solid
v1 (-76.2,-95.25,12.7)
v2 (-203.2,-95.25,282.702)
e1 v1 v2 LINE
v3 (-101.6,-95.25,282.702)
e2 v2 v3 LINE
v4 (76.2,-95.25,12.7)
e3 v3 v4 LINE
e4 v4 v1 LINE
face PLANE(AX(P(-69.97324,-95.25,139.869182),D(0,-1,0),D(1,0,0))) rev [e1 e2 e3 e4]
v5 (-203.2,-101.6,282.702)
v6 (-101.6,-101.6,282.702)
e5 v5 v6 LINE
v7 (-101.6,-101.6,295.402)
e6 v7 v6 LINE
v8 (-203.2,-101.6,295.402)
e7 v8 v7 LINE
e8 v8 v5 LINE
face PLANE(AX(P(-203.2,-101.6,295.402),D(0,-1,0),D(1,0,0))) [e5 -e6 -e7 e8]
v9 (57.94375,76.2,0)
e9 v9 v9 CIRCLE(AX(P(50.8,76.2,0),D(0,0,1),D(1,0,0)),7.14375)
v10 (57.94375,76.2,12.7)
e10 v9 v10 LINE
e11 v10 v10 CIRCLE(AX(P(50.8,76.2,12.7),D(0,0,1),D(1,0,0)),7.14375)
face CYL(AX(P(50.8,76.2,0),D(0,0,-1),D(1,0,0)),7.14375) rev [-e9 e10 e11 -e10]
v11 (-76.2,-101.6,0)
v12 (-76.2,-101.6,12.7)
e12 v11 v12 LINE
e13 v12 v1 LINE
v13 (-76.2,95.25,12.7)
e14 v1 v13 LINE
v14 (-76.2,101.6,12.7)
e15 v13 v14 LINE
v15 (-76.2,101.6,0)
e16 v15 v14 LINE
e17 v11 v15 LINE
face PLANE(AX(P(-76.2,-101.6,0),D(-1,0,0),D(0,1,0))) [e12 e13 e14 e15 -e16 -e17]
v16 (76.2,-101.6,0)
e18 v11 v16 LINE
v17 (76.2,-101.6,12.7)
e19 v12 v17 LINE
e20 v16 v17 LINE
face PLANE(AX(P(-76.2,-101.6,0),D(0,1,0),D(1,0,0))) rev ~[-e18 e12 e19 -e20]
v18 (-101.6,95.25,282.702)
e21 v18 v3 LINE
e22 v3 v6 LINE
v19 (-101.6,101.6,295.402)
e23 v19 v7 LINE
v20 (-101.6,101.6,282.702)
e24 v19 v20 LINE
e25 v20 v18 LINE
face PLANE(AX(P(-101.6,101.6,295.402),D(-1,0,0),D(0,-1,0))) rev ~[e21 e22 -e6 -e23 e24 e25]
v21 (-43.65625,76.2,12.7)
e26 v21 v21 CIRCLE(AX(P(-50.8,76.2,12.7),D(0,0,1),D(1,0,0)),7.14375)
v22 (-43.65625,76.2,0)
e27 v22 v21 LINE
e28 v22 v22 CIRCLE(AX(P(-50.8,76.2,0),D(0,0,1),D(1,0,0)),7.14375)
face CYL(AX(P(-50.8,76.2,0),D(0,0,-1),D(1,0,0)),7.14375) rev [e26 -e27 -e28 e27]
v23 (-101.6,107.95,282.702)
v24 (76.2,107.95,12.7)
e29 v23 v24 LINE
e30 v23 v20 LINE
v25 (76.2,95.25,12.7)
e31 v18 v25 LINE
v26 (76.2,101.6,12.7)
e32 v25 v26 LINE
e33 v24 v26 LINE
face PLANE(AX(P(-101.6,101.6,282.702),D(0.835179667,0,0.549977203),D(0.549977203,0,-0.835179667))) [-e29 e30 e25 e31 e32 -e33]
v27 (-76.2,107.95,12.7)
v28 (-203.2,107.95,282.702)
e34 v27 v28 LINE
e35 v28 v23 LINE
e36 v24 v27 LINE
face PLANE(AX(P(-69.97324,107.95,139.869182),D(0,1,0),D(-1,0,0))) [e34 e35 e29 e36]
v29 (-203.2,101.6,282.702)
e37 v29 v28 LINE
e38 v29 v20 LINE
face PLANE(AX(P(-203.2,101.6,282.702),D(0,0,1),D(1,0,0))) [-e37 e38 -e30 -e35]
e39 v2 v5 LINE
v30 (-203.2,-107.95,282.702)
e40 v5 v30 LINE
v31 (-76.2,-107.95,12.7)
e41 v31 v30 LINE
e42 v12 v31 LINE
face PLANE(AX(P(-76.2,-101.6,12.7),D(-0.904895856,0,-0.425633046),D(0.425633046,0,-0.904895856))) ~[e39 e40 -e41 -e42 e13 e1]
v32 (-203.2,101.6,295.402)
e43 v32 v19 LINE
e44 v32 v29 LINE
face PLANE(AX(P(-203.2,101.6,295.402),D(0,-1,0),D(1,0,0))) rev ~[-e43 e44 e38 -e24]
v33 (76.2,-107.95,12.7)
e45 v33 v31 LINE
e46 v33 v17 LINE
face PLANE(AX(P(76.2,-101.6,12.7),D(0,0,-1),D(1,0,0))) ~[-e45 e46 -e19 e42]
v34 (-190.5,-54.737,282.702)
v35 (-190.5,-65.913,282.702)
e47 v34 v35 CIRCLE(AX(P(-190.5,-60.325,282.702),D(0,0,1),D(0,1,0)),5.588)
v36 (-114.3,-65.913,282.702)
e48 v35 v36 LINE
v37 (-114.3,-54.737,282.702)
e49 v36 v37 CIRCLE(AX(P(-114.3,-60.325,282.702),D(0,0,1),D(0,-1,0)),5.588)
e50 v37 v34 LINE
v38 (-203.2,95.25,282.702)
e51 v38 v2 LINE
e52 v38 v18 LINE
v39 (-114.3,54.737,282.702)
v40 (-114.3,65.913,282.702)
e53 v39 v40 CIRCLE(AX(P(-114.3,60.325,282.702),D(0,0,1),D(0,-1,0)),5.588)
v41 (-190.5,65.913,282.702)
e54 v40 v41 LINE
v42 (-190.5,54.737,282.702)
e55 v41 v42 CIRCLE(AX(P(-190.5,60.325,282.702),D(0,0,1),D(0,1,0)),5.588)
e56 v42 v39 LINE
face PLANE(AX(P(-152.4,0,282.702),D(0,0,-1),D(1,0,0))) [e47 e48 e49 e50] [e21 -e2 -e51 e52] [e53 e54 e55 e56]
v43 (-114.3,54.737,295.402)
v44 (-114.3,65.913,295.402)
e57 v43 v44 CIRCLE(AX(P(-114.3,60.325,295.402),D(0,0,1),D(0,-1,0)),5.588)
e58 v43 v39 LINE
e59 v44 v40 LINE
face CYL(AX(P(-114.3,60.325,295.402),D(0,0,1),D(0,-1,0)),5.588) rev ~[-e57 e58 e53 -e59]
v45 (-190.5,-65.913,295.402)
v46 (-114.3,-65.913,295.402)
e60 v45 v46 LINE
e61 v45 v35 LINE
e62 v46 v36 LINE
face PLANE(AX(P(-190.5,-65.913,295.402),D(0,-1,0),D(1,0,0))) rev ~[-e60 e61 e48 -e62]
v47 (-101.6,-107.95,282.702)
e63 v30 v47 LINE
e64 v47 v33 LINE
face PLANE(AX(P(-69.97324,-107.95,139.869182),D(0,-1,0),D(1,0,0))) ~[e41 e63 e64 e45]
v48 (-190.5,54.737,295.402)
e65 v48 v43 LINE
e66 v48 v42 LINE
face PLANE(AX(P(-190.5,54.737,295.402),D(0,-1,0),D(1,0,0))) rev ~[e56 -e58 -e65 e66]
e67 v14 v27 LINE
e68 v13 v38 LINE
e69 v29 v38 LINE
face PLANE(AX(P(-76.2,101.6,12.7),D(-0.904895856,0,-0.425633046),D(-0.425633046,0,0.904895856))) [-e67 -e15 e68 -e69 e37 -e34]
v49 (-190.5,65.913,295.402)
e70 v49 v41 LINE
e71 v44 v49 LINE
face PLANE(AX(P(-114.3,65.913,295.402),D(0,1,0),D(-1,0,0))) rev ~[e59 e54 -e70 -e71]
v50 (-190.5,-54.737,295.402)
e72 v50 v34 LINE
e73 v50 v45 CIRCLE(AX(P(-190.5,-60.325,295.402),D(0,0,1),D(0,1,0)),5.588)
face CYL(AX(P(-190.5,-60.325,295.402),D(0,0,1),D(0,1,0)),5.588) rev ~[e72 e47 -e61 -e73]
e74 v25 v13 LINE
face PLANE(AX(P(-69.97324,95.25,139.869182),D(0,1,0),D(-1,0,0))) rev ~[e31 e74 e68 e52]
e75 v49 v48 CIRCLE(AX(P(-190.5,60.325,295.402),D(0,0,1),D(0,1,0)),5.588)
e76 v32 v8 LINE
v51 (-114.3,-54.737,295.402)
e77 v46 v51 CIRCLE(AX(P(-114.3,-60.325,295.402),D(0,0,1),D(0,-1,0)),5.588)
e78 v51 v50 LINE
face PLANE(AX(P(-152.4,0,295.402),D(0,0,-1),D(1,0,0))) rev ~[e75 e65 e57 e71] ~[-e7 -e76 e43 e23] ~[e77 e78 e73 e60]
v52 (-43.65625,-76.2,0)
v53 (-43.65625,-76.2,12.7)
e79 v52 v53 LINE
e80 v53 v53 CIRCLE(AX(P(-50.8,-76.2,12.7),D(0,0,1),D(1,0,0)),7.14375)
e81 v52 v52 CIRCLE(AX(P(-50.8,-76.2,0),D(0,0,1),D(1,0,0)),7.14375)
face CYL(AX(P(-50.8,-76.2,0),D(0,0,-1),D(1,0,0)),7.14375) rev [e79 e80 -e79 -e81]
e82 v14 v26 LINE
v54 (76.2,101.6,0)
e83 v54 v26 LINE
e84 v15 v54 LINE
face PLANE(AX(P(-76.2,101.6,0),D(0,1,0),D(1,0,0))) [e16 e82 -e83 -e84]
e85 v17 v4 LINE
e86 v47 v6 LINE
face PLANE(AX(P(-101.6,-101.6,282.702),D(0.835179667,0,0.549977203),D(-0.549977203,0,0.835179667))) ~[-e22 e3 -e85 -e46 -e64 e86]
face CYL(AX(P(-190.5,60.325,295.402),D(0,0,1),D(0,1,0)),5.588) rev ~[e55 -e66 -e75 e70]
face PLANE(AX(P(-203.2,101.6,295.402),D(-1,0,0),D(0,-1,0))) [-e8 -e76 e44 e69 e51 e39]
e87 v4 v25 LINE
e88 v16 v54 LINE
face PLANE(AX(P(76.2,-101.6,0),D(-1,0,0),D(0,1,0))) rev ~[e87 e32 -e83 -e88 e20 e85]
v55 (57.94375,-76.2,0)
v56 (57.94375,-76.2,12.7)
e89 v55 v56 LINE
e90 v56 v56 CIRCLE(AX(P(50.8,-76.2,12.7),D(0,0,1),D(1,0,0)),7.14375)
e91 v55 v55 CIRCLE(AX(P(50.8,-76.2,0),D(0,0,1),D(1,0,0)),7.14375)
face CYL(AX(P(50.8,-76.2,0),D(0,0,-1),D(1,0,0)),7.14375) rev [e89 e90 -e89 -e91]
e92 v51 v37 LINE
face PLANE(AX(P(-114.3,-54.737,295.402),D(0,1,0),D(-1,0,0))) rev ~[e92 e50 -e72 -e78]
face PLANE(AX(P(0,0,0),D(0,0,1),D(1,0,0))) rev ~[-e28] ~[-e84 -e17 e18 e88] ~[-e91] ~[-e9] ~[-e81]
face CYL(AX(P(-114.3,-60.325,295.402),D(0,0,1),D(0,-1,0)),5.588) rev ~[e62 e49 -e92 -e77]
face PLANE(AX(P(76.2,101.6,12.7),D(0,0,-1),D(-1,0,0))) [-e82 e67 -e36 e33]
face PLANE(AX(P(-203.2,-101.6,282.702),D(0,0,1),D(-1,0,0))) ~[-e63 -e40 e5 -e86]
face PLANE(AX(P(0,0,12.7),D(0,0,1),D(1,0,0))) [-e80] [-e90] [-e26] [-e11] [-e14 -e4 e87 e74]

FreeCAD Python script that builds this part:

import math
import FreeCAD as App
import Part
import Sketcher
Q = App.Units.Quantity

doc = App.newDocument("Part")
params = doc.addObject("Spreadsheet::Sheet", "Params")
for row, (alias, value) in enumerate([
    ("sketch1_width", "6 in"),
    ("sketch1_height", "8 in"),
    ("sketch1_diameter", "0.5625 in"),
    ("pad1_length", "0.5 in"),
    ("sketch2_width", "4 in"),
    ("sketch2_width2", "3 in"),
    ("sketch2_height", "8 in"),
    ("sketch2_radius", "0.22 in"),
    ("pad2_length", "0.5 in"),
    ("sketch3_width", "6 in"),
    ("sketch3_width2", "4 in"),
    ("pad3_length", "0.5 in"),
], start=1):
    params.set(f"A{row}", alias)
    params.set(f"B{row}", "=" + value)
    params.setAlias(f"B{row}", alias)

body = doc.addObject("PartDesign::Body", "Body")

sketch1 = body.newObject("Sketcher::SketchObject", "Sketch")
sketch1.AttachmentSupport = (doc.getObject("XY_Plane"), [""])
sketch1.MapMode = "FlatFace"
sketch1.addGeometry([
    Part.LineSegment(App.Vector(-76, 102, 0), App.Vector(-76, -102, 0)),
    Part.LineSegment(App.Vector(-76, -102, 0), App.Vector(76, -102, 0)),
    Part.LineSegment(App.Vector(76, -102, 0), App.Vector(76, 102, 0)),
    Part.LineSegment(App.Vector(76, 102, 0), App.Vector(-76, 102, 0)),
    Part.Circle(App.Vector(-51, -76, 0), App.Vector(0, 0, 1), 7),
    Part.Circle(App.Vector(51, -76, 0), App.Vector(0, 0, 1), 7),
    Part.Circle(App.Vector(-51, 76, 0), App.Vector(0, 0, 1), 7),
    Part.Circle(App.Vector(51, 76, 0), App.Vector(0, 0, 1), 7),
], False)
sketch1.addConstraint([
    Sketcher.Constraint("Coincident", 0, 2, 1, 1),
    Sketcher.Constraint("Coincident", 1, 2, 2, 1),
    Sketcher.Constraint("Coincident", 2, 2, 3, 1),
    Sketcher.Constraint("Coincident", 3, 2, 0, 1),
    Sketcher.Constraint("Vertical", 0),
    Sketcher.Constraint("Horizontal", 1),
    Sketcher.Constraint("Vertical", 2),
    Sketcher.Constraint("Horizontal", 3),
    Sketcher.Constraint("Equal", 4, 5),
    Sketcher.Constraint("Equal", 5, 6),
    Sketcher.Constraint("Equal", 6, 7),
    Sketcher.Constraint("Symmetric", 5, 3, 6, 3, -1, 1),
    Sketcher.Constraint("Symmetric", 4, 3, 7, 3, -1, 1),
    Sketcher.Constraint("Symmetric", 0, 2, 2, 2, -1, 1),
    Sketcher.Constraint("Symmetric", 4, 3, 5, 3, -2),
    Sketcher.Constraint("DistanceX", 1, 1, 1, 2, Q("6 in")),
    Sketcher.Constraint("DistanceY", 0, 2, 0, 1, Q("8 in")),
    Sketcher.Constraint("Diameter", 4, Q("0.5625 in")),
    Sketcher.Constraint("DistanceX", 4, 3, -1, 1, Q("2 in")),
    Sketcher.Constraint("DistanceY", 4, 3, -1, 1, Q("3 in")),
])
sketch1.setExpression("Constraints[15]", "Params.sketch1_width")
sketch1.setExpression("Constraints[16]", "Params.sketch1_height")
sketch1.setExpression("Constraints[17]", "Params.sketch1_diameter")
pad1 = body.newObject("PartDesign::Pad", "Pad")
pad1.Profile = sketch1
pad1.setExpression("Length", "Params.pad1_length")
body2 = doc.addObject("PartDesign::Body", "Body001")

sketch2 = body2.newObject("Sketcher::SketchObject", "Sketch001")
sketch2.AttachmentSupport = (doc.getObject("XY_Plane001"), [""])
sketch2.MapMode = "FlatFace"
sketch2.AttachmentOffset = App.Placement(App.Vector(0, 0, 11.63 * 25.4), App.Rotation())
sketch2.addGeometry([
    Part.LineSegment(App.Vector(-203, -102, 0), App.Vector(-203, 102, 0)),
    Part.LineSegment(App.Vector(-203, 102, 0), App.Vector(-102, 102, 0)),
    Part.LineSegment(App.Vector(-102, 102, 0), App.Vector(-102, -102, 0)),
    Part.LineSegment(App.Vector(-102, -102, 0), App.Vector(-203, -102, 0)),
    Part.LineSegment(App.Vector(-190, 55, 0), App.Vector(-114, 55, 0)),
    Part.ArcOfCircle(Part.Circle(App.Vector(-114, 60, 0), App.Vector(0, 0, 1), 6), math.radians(-90), math.radians(90)),
    Part.LineSegment(App.Vector(-114, 66, 0), App.Vector(-190, 66, 0)),
    Part.ArcOfCircle(Part.Circle(App.Vector(-190, 60, 0), App.Vector(0, 0, 1), 6), math.radians(90), math.radians(270)),
    Part.ArcOfCircle(Part.Circle(App.Vector(-114, -60, 0), App.Vector(0, 0, 1), 6), math.radians(-90), math.radians(90)),
    Part.LineSegment(App.Vector(-114, -55, 0), App.Vector(-190, -55, 0)),
    Part.ArcOfCircle(Part.Circle(App.Vector(-190, -60, 0), App.Vector(0, 0, 1), 6), math.radians(90), math.radians(270)),
    Part.LineSegment(App.Vector(-190, -66, 0), App.Vector(-114, -66, 0)),
], False)
sketch2.addConstraint([
    Sketcher.Constraint("Coincident", 0, 2, 1, 1),
    Sketcher.Constraint("Coincident", 1, 2, 2, 1),
    Sketcher.Constraint("Coincident", 2, 2, 3, 1),
    Sketcher.Constraint("Coincident", 3, 2, 0, 1),
    Sketcher.Constraint("Tangent", 4, 2, 5, 1),
    Sketcher.Constraint("Tangent", 5, 2, 6, 1),
    Sketcher.Constraint("Tangent", 6, 2, 7, 1),
    Sketcher.Constraint("Tangent", 7, 2, 4, 1),
    Sketcher.Constraint("Tangent", 8, 2, 9, 1),
    Sketcher.Constraint("Tangent", 9, 2, 10, 1),
    Sketcher.Constraint("Tangent", 10, 2, 11, 1),
    Sketcher.Constraint("Tangent", 11, 2, 8, 1),
    Sketcher.Constraint("Vertical", 0),
    Sketcher.Constraint("Horizontal", 1),
    Sketcher.Constraint("Vertical", 2),
    Sketcher.Constraint("Horizontal", 3),
    Sketcher.Constraint("Horizontal", 4),
    Sketcher.Constraint("Horizontal", 6),
    Sketcher.Constraint("Horizontal", 9),
    Sketcher.Constraint("Horizontal", 11),
    Sketcher.Constraint("Equal", 7, 8),
    Sketcher.Constraint("Symmetric", 5, 3, 8, 3, -1),
    Sketcher.Constraint("Vertical", 7, 3, 10, 3),
    Sketcher.Constraint("DistanceX", 1, 1, 1, 2, Q("4 in")),
    Sketcher.Constraint("DistanceX", 4, 1, 4, 2, Q("3 in")),
    Sketcher.Constraint("DistanceY", 0, 1, 0, 2, Q("8 in")),
    Sketcher.Constraint("Radius", 5, Q("0.22 in")),
    Sketcher.Constraint("DistanceX", 0, 2, -1, 1, Q("8 in")),
    Sketcher.Constraint("DistanceY", -1, 1, 0, 2, Q("4 in")),
    Sketcher.Constraint("DistanceX", 5, 3, -1, 1, Q("4.5 in")),
    Sketcher.Constraint("DistanceY", 8, 3, 5, 3, Q("4.75 in")),
])
sketch2.setExpression("Constraints[23]", "Params.sketch2_width")
sketch2.setExpression("Constraints[24]", "Params.sketch2_width2")
sketch2.setExpression("Constraints[25]", "Params.sketch2_height")
sketch2.setExpression("Constraints[26]", "Params.sketch2_radius")
pad2 = body2.newObject("PartDesign::Pad", "Pad001")
pad2.Profile = sketch2
pad2.setExpression("Length", "Params.pad2_length")
pad2.Reversed = True
body.AllowCompound = True
doc.recompute()

boolean = body.newObject("PartDesign::Boolean", "Boolean")
boolean.Type = "Fuse"
boolean.addObjects([body2])

sketch3 = body.newObject("Sketcher::SketchObject", "Sketch002")
sketch3.AttachmentSupport = (doc.getObject("XZ_Plane"), [""])
sketch3.MapMode = "FlatFace"
sketch3.AttachmentOffset = App.Placement(App.Vector(0, 0, -4 * 25.4), App.Rotation())
sketch3.addGeometry([
    Part.LineSegment(App.Vector(76, 13, 0), App.Vector(-76, 13, 0)),
    Part.LineSegment(App.Vector(-76, 13, 0), App.Vector(-203, 283, 0)),
    Part.LineSegment(App.Vector(-203, 283, 0), App.Vector(-102, 283, 0)),
    Part.LineSegment(App.Vector(-102, 283, 0), App.Vector(76, 13, 0)),
], False)
sketch3.addConstraint([
    Sketcher.Constraint("Coincident", 0, 2, 1, 1),
    Sketcher.Constraint("Coincident", 1, 2, 2, 1),
    Sketcher.Constraint("Coincident", 2, 2, 3, 1),
    Sketcher.Constraint("Coincident", 3, 2, 0, 1),
    Sketcher.Constraint("Horizontal", 0),
    Sketcher.Constraint("Horizontal", 2),
    Sketcher.Constraint("DistanceX", 0, 2, 0, 1, Q("6 in")),
    Sketcher.Constraint("DistanceX", 2, 1, 2, 2, Q("4 in")),
    Sketcher.Constraint("DistanceX", 0, 2, -1, 1, Q("3 in")),
    Sketcher.Constraint("DistanceX", 1, 2, -1, 1, Q("8 in")),
    Sketcher.Constraint("DistanceY", -1, 1, 0, 2, Q("0.5 in")),
    Sketcher.Constraint("DistanceY", -1, 1, 1, 2, Q("11.13 in")),
])
sketch3.setExpression("Constraints[6]", "Params.sketch3_width")
sketch3.setExpression("Constraints[7]", "Params.sketch3_width2")
pad3 = body.newObject("PartDesign::Pad", "Pad002")
pad3.Profile = sketch3
pad3.setExpression("Length", "Params.pad3_length")
pad3.Midplane = True
body3 = doc.addObject("PartDesign::Body", "Body002")
doc.recompute()

body3.BaseFeature = body
doc.recompute()

mirroring = doc.addObject("Part::Mirroring", "Mirroring")
mirroring.Source = body
mirroring.Base = App.Vector(0, 0, 0)
mirroring.Normal = App.Vector(0, -1, 0)
body4 = doc.addObject("PartDesign::Body", "Body003")
body4.BaseFeature = mirroring
boolean2 = body3.newObject("PartDesign::Boolean", "Boolean001")
boolean2.Type = "Fuse"
boolean2.addObjects([body4])
doc.recompute()
mirroring.Visibility = False

doc.recompute()
